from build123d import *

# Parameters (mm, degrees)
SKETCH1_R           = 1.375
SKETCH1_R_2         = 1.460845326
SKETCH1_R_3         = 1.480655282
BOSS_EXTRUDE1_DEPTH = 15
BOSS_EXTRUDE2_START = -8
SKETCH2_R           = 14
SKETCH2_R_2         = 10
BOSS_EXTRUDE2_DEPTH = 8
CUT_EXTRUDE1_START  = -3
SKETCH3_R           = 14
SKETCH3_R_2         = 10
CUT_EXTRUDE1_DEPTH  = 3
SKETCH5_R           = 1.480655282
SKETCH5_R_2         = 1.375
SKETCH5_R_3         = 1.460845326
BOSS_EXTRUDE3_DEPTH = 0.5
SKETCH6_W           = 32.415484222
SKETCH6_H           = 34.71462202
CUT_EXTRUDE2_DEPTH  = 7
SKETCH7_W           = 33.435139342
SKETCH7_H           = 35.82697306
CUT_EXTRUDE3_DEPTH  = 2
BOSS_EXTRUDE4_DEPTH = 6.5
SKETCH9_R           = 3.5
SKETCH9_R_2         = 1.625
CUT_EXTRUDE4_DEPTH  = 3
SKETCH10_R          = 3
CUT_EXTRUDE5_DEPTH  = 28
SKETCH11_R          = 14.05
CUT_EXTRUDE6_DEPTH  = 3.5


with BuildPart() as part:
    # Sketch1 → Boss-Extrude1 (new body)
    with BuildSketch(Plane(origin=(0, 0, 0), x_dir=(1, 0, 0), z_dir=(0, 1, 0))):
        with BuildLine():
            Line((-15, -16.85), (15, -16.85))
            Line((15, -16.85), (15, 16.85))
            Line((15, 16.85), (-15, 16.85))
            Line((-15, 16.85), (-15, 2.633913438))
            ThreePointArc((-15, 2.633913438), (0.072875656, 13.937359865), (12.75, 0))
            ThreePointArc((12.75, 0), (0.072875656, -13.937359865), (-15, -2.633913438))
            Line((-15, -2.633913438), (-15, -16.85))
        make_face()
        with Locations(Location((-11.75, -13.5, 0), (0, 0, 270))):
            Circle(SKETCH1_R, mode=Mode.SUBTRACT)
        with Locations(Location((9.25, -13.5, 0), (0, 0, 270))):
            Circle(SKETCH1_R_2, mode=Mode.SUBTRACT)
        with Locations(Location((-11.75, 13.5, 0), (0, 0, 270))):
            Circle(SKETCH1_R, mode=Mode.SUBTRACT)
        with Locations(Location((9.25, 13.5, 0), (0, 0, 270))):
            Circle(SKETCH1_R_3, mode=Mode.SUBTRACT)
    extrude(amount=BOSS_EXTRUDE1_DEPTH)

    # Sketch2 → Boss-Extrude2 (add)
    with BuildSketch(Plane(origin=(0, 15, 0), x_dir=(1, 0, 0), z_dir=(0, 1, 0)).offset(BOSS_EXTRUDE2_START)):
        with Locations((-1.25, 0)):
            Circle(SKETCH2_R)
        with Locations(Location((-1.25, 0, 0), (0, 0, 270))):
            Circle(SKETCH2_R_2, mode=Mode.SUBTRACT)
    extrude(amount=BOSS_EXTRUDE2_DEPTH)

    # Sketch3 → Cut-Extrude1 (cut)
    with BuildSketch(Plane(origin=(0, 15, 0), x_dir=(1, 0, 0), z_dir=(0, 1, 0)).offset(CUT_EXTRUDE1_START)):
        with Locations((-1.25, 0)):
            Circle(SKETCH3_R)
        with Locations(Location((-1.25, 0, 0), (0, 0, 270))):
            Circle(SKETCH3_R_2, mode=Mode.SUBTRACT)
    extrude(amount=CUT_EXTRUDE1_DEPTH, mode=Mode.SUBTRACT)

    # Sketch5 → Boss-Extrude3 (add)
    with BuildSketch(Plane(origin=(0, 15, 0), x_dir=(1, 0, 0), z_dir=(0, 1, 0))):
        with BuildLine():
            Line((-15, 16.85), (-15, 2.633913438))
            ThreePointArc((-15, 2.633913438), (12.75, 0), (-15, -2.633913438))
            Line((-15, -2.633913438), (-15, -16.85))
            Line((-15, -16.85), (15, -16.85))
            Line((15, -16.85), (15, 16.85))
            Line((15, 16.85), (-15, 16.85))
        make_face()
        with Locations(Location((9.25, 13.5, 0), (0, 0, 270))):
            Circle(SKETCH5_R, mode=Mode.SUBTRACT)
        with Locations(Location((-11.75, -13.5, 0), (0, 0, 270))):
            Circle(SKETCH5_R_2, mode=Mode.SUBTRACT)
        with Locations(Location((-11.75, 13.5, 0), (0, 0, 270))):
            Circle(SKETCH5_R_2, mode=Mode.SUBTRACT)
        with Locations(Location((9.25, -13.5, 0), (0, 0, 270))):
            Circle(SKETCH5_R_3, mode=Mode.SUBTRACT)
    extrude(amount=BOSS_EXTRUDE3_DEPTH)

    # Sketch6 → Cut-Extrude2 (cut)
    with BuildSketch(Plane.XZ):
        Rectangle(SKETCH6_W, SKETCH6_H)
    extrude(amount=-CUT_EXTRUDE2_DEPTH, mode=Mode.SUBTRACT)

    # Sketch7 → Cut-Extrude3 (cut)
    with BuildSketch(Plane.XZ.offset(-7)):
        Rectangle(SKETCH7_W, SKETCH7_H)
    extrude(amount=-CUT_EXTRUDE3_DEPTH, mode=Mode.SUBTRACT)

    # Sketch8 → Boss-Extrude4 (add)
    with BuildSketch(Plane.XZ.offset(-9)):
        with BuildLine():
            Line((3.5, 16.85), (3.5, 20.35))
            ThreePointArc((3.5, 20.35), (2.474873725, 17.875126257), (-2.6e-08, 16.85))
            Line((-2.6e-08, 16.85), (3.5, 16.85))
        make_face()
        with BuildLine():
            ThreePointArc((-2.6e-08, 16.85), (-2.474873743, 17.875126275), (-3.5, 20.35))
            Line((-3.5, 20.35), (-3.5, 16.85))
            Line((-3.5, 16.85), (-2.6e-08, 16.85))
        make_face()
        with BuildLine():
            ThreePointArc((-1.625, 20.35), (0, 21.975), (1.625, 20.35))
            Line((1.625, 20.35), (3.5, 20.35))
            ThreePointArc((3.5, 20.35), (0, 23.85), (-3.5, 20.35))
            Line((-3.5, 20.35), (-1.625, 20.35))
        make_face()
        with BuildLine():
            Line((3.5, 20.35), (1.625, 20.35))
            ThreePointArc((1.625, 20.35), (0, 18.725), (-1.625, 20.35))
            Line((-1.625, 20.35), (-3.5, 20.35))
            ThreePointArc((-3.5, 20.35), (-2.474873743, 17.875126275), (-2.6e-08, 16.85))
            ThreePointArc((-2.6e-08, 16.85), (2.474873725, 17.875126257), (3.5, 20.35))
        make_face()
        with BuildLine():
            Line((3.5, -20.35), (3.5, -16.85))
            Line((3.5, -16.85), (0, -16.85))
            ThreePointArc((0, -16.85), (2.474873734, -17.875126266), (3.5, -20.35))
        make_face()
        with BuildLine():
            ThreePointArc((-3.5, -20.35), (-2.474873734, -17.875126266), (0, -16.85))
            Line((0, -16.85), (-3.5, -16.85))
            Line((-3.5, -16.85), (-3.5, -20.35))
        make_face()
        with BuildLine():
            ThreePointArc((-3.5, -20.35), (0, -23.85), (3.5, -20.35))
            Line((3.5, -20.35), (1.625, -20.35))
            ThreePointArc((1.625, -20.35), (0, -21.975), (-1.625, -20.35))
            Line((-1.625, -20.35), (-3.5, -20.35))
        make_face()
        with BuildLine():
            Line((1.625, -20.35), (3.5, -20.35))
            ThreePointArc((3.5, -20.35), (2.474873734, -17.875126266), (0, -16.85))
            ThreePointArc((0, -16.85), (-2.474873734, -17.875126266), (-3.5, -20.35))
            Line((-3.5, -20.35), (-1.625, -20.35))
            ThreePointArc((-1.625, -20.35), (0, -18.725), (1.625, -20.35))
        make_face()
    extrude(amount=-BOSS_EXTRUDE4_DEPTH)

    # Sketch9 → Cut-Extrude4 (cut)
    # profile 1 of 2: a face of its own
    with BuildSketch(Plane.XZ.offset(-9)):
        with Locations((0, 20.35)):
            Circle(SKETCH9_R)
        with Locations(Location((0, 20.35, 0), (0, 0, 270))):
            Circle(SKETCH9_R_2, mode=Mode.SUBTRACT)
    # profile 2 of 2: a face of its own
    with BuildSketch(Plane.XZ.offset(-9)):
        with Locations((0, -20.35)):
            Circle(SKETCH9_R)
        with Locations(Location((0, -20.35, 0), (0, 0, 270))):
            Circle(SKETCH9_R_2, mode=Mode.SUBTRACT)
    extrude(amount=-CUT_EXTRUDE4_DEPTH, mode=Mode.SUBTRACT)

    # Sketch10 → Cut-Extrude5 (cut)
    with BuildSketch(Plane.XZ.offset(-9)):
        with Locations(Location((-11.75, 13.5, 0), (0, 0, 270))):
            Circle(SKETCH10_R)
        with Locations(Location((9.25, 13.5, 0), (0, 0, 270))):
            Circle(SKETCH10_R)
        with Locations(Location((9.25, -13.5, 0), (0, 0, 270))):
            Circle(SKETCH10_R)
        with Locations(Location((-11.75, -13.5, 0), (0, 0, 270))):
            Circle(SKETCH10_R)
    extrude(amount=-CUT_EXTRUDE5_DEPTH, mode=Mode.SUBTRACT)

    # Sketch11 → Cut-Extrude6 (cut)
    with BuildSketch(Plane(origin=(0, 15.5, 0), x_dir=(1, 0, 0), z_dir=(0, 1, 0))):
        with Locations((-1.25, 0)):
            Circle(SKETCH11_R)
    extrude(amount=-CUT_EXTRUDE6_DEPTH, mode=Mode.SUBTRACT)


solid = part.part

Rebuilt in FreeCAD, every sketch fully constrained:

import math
import FreeCAD as App
import Part
import Sketcher
Q = App.Units.Quantity

doc = App.newDocument("Part")
body = doc.addObject("PartDesign::Body", "Body")

# Sketch on XZ plane
sketch1 = doc.addObject("Sketcher::SketchObject", "Sketch")
body.addObject(sketch1)
sketch1.AttachmentSupport = (doc.XZ_Plane, [""])
sketch1.MapMode = "FlatFace"
sketch1.addGeometry([
    Part.LineSegment(App.Vector(-15, 16.85, 0), App.Vector(15, 16.85, 0)),  # 0
    Part.LineSegment(App.Vector(15, 16.85, 0), App.Vector(15, -16.85, 0)),  # 1
    Part.LineSegment(App.Vector(15, -16.85, 0), App.Vector(-15, -16.85, 0)),  # 2
    Part.LineSegment(App.Vector(-15, -16.85, 0), App.Vector(-15, -2.633913, 0)),  # 3
    Part.ArcOfCircle(Part.Circle(App.Vector(-1.25, 0, 0), App.Vector(0, 0, 1), 14), math.radians(-169.155937), math.radians(0)),  # 4
    Part.ArcOfCircle(Part.Circle(App.Vector(-1.25, 0, 0), App.Vector(0, 0, 1), 14), math.radians(0), math.radians(169.155937)),  # 5
    Part.LineSegment(App.Vector(-15, 2.633913, 0), App.Vector(-15, 16.85, 0)),  # 6
    Part.Circle(App.Vector(-11.75, 13.5, 0), App.Vector(0, 0, 1), 1.375),  # 7
    Part.Circle(App.Vector(9.25, 13.5, 0), App.Vector(0, 0, 1), 1.460845),  # 8
    Part.Circle(App.Vector(-11.75, -13.5, 0), App.Vector(0, 0, 1), 1.375),  # 9
    Part.Circle(App.Vector(9.25, -13.5, 0), App.Vector(0, 0, 1), 1.480655),  # 10
], False)
sketch1.addConstraint([
    Sketcher.Constraint("Coincident", 0, 2, 1, 1),
    Sketcher.Constraint("Coincident", 1, 2, 2, 1),
    Sketcher.Constraint("Coincident", 2, 2, 3, 1),
    Sketcher.Constraint("Coincident", 3, 2, 4, 1),
    Sketcher.Constraint("Tangent", 4, 2, 5, 1),
    Sketcher.Constraint("Coincident", 5, 2, 6, 1),
    Sketcher.Constraint("Coincident", 6, 2, 0, 1),
    Sketcher.Constraint("Horizontal", 0),
    Sketcher.Constraint("Vertical", 1),
    Sketcher.Constraint("Horizontal", 2),
    Sketcher.Constraint("Vertical", 3),
    Sketcher.Constraint("Vertical", 6),
    Sketcher.Constraint("Equal", 4, 5),
    Sketcher.Constraint("Equal", 7, 9),
    Sketcher.Constraint("Symmetric", 0, 2, 2, 2, -1, 1),
    Sketcher.Constraint("Symmetric", 7, 3, 9, 3, -1),
    Sketcher.Constraint("Symmetric", 8, 3, 10, 3, -1),
    Sketcher.Constraint("Symmetric", 3, 2, 5, 2, -1),
    Sketcher.Constraint("PointOnObject", 4, 2, -1),
    Sketcher.Constraint("Horizontal", 7, 3, 8, 3),
    Sketcher.Constraint("Radius", 4, Q("14 mm")),
    Sketcher.Constraint("Diameter", 7, Q("2.75 mm")),
    Sketcher.Constraint("DistanceX", 0, 1, 0, 2, Q("30 mm")),
    Sketcher.Constraint("DistanceY", 1, 2, 1, 1, Q("33.7 mm")),
    Sketcher.Constraint("DistanceX", 7, 3, 8, 3, Q("21 mm")),
    Sketcher.Constraint("DistanceY", 9, 3, 7, 3, Q("27 mm")),
    Sketcher.Constraint("DistanceX", 7, 3, 4, 3, Q("10.5 mm")),
    Sketcher.Constraint("Diameter", 8, Q("2.921691 mm")),
    Sketcher.Constraint("Diameter", 10, Q("2.961311 mm")),
    Sketcher.Constraint("DistanceX", 4, 3, -1, 1, Q("1.25 mm")),
])
pad1 = doc.addObject("PartDesign::Pad", "Pad")
body.addObject(pad1)
pad1.Profile = sketch1
pad1.Length = 15
pad1.Reversed = True

# Sketch on XZ plane
sketch2 = doc.addObject("Sketcher::SketchObject", "Sketch001")
body.addObject(sketch2)
sketch2.AttachmentSupport = (doc.XZ_Plane, [""])
sketch2.MapMode = "FlatFace"
sketch2.AttachmentOffset = App.Placement(App.Vector(0, 0, -7), App.Rotation())
sketch2.addGeometry([
    Part.Circle(App.Vector(-1.25, 0, 0), App.Vector(0, 0, 1), 14),
    Part.Circle(App.Vector(-1.25, 0, 0), App.Vector(0, 0, 1), 10),
], False)
sketch2.addConstraint([
    Sketcher.Constraint("Coincident", 1, 3, 0, 3),
    Sketcher.Constraint("PointOnObject", 0, 3, -1),
    Sketcher.Constraint("Diameter", 0, Q("28 mm")),
    Sketcher.Constraint("Diameter", 1, Q("20 mm")),
    Sketcher.Constraint("DistanceX", 0, 3, -1, 1, Q("1.25 mm")),
])
pad2 = doc.addObject("PartDesign::Pad", "Pad001")
body.addObject(pad2)
pad2.Profile = sketch2
pad2.Length = 8
pad2.Reversed = True

# Sketch on XZ plane
sketch3 = doc.addObject("Sketcher::SketchObject", "Sketch002")
body.addObject(sketch3)
sketch3.AttachmentSupport = (doc.XZ_Plane, [""])
sketch3.MapMode = "FlatFace"
sketch3.AttachmentOffset = App.Placement(App.Vector(0, 0, -12), App.Rotation())
sketch3.addGeometry([
    Part.Circle(App.Vector(-1.25, 0, 0), App.Vector(0, 0, 1), 14),
    Part.Circle(App.Vector(-1.25, 0, 0), App.Vector(0, 0, 1), 10),
], False)
sketch3.addConstraint([
    Sketcher.Constraint("Coincident", 1, 3, 0, 3),
    Sketcher.Constraint("PointOnObject", 0, 3, -1),
    Sketcher.Constraint("Diameter", 0, Q("28 mm")),
    Sketcher.Constraint("Diameter", 1, Q("20 mm")),
    Sketcher.Constraint("DistanceX", 0, 3, -1, 1, Q("1.25 mm")),
])
pocket1 = doc.addObject("PartDesign::Pocket", "Pocket")
body.addObject(pocket1)
pocket1.Profile = sketch3
pocket1.Length = 3

# Sketch on XZ plane
sketch4 = doc.addObject("Sketcher::SketchObject", "Sketch003")
body.addObject(sketch4)
sketch4.AttachmentSupport = (doc.XZ_Plane, [""])
sketch4.MapMode = "FlatFace"
sketch4.AttachmentOffset = App.Placement(App.Vector(0, 0, -15), App.Rotation())
sketch4.addGeometry([
    Part.LineSegment(App.Vector(-15, -16.85, 0), App.Vector(-15, -2.633913, 0)),  # 0
    Part.ArcOfCircle(Part.Circle(App.Vector(-1.25, 0, 0), App.Vector(0, 0, 1), 14), math.radians(-169.155937), math.radians(169.155937)),  # 1
    Part.LineSegment(App.Vector(-15, 2.633913, 0), App.Vector(-15, 16.85, 0)),  # 2
    Part.LineSegment(App.Vector(-15, 16.85, 0), App.Vector(15, 16.85, 0)),  # 3
    Part.LineSegment(App.Vector(15, 16.85, 0), App.Vector(15, -16.85, 0)),  # 4
    Part.LineSegment(App.Vector(15, -16.85, 0), App.Vector(-15, -16.85, 0)),  # 5
    Part.Circle(App.Vector(-11.75, 13.5, 0), App.Vector(0, 0, 1), 1.375),  # 6
    Part.Circle(App.Vector(9.25, 13.5, 0), App.Vector(0, 0, 1), 1.460845),  # 7
    Part.Circle(App.Vector(-11.75, -13.5, 0), App.Vector(0, 0, 1), 1.375),  # 8
    Part.Circle(App.Vector(9.25, -13.5, 0), App.Vector(0, 0, 1), 1.480655),  # 9
], False)
sketch4.addConstraint([
    Sketcher.Constraint("Coincident", 0, 2, 1, 1),
    Sketcher.Constraint("Coincident", 1, 2, 2, 1),
    Sketcher.Constraint("Coincident", 2, 2, 3, 1),
    Sketcher.Constraint("Coincident", 3, 2, 4, 1),
    Sketcher.Constraint("Coincident", 4, 2, 5, 1),
    Sketcher.Constraint("Coincident", 5, 2, 0, 1),
    Sketcher.Constraint("Vertical", 0),
    Sketcher.Constraint("Vertical", 2),
    Sketcher.Constraint("Horizontal", 3),
    Sketcher.Constraint("Vertical", 4),
    Sketcher.Constraint("Horizontal", 5),
    Sketcher.Constraint("Equal", 6, 8),
    Sketcher.Constraint("Symmetric", 2, 2, 4, 2, -1, 1),
    Sketcher.Constraint("Symmetric", 6, 3, 8, 3, -1),
    Sketcher.Constraint("Symmetric", 7, 3, 9, 3, -1),
    Sketcher.Constraint("Symmetric", 0, 2, 1, 2, -1),
    Sketcher.Constraint("Horizontal", 6, 3, 7, 3),
    Sketcher.Constraint("Radius", 1, Q("14 mm")),
    Sketcher.Constraint("Diameter", 6, Q("2.75 mm")),
    Sketcher.Constraint("DistanceX", 3, 1, 3, 2, Q("30 mm")),
    Sketcher.Constraint("DistanceY", 4, 2, 4, 1, Q("33.7 mm")),
    Sketcher.Constraint("DistanceX", 6, 3, 7, 3, Q("21 mm")),
    Sketcher.Constraint("DistanceY", 8, 3, 6, 3, Q("27 mm")),
    Sketcher.Constraint("DistanceX", 6, 3, 1, 3, Q("10.5 mm")),
    Sketcher.Constraint("Diameter", 7, Q("2.921691 mm")),
    Sketcher.Constraint("Diameter", 9, Q("2.961311 mm")),
    Sketcher.Constraint("DistanceX", 1, 3, -1, 1, Q("1.25 mm")),
])
pad3 = doc.addObject("PartDesign::Pad", "Pad002")
body.addObject(pad3)
pad3.Profile = sketch4
pad3.Length = 0.5
pad3.Reversed = True

# Sketch on XZ plane
sketch5 = doc.addObject("Sketcher::SketchObject", "Sketch004")
body.addObject(sketch5)
sketch5.AttachmentSupport = (doc.XZ_Plane, [""])
sketch5.MapMode = "FlatFace"
sketch5.addGeometry([
    Part.LineSegment(App.Vector(-16.207742, 17.357311, 0), App.Vector(-16.207742, -17.357311, 0)),
    Part.LineSegment(App.Vector(-16.207742, -17.357311, 0), App.Vector(16.207742, -17.357311, 0)),
    Part.LineSegment(App.Vector(16.207742, -17.357311, 0), App.Vector(16.207742, 17.357311, 0)),
    Part.LineSegment(App.Vector(16.207742, 17.357311, 0), App.Vector(-16.207742, 17.357311, 0)),
], False)
sketch5.addConstraint([
    Sketcher.Constraint("Coincident", 0, 2, 1, 1),
    Sketcher.Constraint("Coincident", 1, 2, 2, 1),
    Sketcher.Constraint("Coincident", 2, 2, 3, 1),
    Sketcher.Constraint("Coincident", 3, 2, 0, 1),
    Sketcher.Constraint("Vertical", 0),
    Sketcher.Constraint("Horizontal", 1),
    Sketcher.Constraint("Vertical", 2),
    Sketcher.Constraint("Horizontal", 3),
    Sketcher.Constraint("Symmetric", 0, 2, 2, 2, -1, 1),
    Sketcher.Constraint("DistanceX", 1, 1, 1, 2, Q("32.415484 mm")),
    Sketcher.Constraint("DistanceY", 0, 2, 0, 1, Q("34.714622 mm")),
])
pocket2 = doc.addObject("PartDesign::Pocket", "Pocket001")
body.addObject(pocket2)
pocket2.Profile = sketch5
pocket2.Length = 7

# Sketch on XZ plane
sketch6 = doc.addObject("Sketcher::SketchObject", "Sketch005")
body.addObject(sketch6)
sketch6.AttachmentSupport = (doc.XZ_Plane, [""])
sketch6.MapMode = "FlatFace"
sketch6.AttachmentOffset = App.Placement(App.Vector(0, 0, -7), App.Rotation())
sketch6.addGeometry([
    Part.LineSegment(App.Vector(-16.71757, 17.913487, 0), App.Vector(-16.71757, -17.913487, 0)),
    Part.LineSegment(App.Vector(-16.71757, -17.913487, 0), App.Vector(16.71757, -17.913487, 0)),
    Part.LineSegment(App.Vector(16.71757, -17.913487, 0), App.Vector(16.71757, 17.913487, 0)),
    Part.LineSegment(App.Vector(16.71757, 17.913487, 0), App.Vector(-16.71757, 17.913487, 0)),
], False)
sketch6.addConstraint([
    Sketcher.Constraint("Coincident", 0, 2, 1, 1),
    Sketcher.Constraint("Coincident", 1, 2, 2, 1),
    Sketcher.Constraint("Coincident", 2, 2, 3, 1),
    Sketcher.Constraint("Coincident", 3, 2, 0, 1),
    Sketcher.Constraint("Vertical", 0),
    Sketcher.Constraint("Horizontal", 1),
    Sketcher.Constraint("Vertical", 2),
    Sketcher.Constraint("Horizontal", 3),
    Sketcher.Constraint("Symmetric", 0, 2, 2, 2, -1, 1),
    Sketcher.Constraint("DistanceX", 1, 1, 1, 2, Q("33.435139 mm")),
    Sketcher.Constraint("DistanceY", 0, 2, 0, 1, Q("35.826973 mm")),
])
pocket3 = doc.addObject("PartDesign::Pocket", "Pocket002")
body.addObject(pocket3)
pocket3.Profile = sketch6
pocket3.Length = 2

# Sketch on XZ plane
sketch7 = doc.addObject("Sketcher::SketchObject", "Sketch006")
body.addObject(sketch7)
sketch7.AttachmentSupport = (doc.XZ_Plane, [""])
sketch7.MapMode = "FlatFace"
sketch7.AttachmentOffset = App.Placement(App.Vector(0, 0, -9), App.Rotation())
sketch7.addGeometry([
    Part.LineSegment(App.Vector(-3.5, 20.35, 0), App.Vector(-3.5, 16.85, 0)),  # 0
    Part.LineSegment(App.Vector(-3.5, 16.85, 0), App.Vector(3.5, 16.85, 0)),  # 1
    Part.LineSegment(App.Vector(3.5, 16.85, 0), App.Vector(3.5, 20.35, 0)),  # 2
    Part.ArcOfCircle(Part.Circle(App.Vector(0, 20.35, 0), App.Vector(0, 0, 1), 3.5), math.radians(0), math.radians(180)),  # 3
    Part.Circle(App.Vector(0, 20.35, 0), App.Vector(0, 0, 1), 1.625),  # 4
    Part.ArcOfCircle(Part.Circle(App.Vector(0, -20.35, 0), App.Vector(0, 0, 1), 3.5), math.radians(180), math.radians(360)),  # 5
    Part.LineSegment(App.Vector(3.5, -20.35, 0), App.Vector(3.5, -16.85, 0)),  # 6
    Part.LineSegment(App.Vector(3.5, -16.85, 0), App.Vector(-3.5, -16.85, 0)),  # 7
    Part.LineSegment(App.Vector(-3.5, -16.85, 0), App.Vector(-3.5, -20.35, 0)),  # 8
    Part.Circle(App.Vector(0, -20.35, 0), App.Vector(0, 0, 1), 1.625),  # 9
], False)
sketch7.addConstraint([
    Sketcher.Constraint("Coincident", 0, 2, 1, 1),
    Sketcher.Constraint("Coincident", 1, 2, 2, 1),
    Sketcher.Constraint("Tangent", 2, 2, 3, 1),
    Sketcher.Constraint("Tangent", 3, 2, 0, 1),
    Sketcher.Constraint("Tangent", 5, 2, 6, 1),
    Sketcher.Constraint("Coincident", 6, 2, 7, 1),
    Sketcher.Constraint("Coincident", 7, 2, 8, 1),
    Sketcher.Constraint("Tangent", 8, 2, 5, 1),
    Sketcher.Constraint("Vertical", 0),
    Sketcher.Constraint("Horizontal", 1),
    Sketcher.Constraint("Vertical", 2),
    Sketcher.Constraint("Vertical", 6),
    Sketcher.Constraint("Horizontal", 7),
    Sketcher.Constraint("Vertical", 8),
    Sketcher.Constraint("Coincident", 4, 3, 3, 3),
    Sketcher.Constraint("Coincident", 9, 3, 5, 3),
    Sketcher.Constraint("Equal", 3, 5),
    Sketcher.Constraint("Equal", 4, 9),
    Sketcher.Constraint("Symmetric", 3, 3, 5, 3, -1, 1),
    Sketcher.Constraint("Symmetric", 1, 2, 6, 2, -1),
    Sketcher.Constraint("Radius", 3, Q("3.5 mm")),
    Sketcher.Constraint("Diameter", 4, Q("3.25 mm")),
    Sketcher.Constraint("DistanceY", 0, 2, 0, 1, Q("3.5 mm")),
    Sketcher.Constraint("DistanceY", 5, 3, 3, 3, Q("40.7 mm")),
])
pad4 = doc.addObject("PartDesign::Pad", "Pad003")
body.addObject(pad4)
pad4.Profile = sketch7
pad4.Length = 6.5
pad4.Reversed = True

# Sketch on XZ plane
sketch8 = doc.addObject("Sketcher::SketchObject", "Sketch007")
body.addObject(sketch8)
sketch8.AttachmentSupport = (doc.XZ_Plane, [""])
sketch8.MapMode = "FlatFace"
sketch8.AttachmentOffset = App.Placement(App.Vector(0, 0, -9), App.Rotation())
sketch8.addGeometry([
    Part.Circle(App.Vector(0, 20.35, 0), App.Vector(0, 0, 1), 3.5),
    Part.Circle(App.Vector(0, 20.35, 0), App.Vector(0, 0, 1), 1.625),
    Part.Circle(App.Vector(0, -20.35, 0), App.Vector(0, 0, 1), 3.5),
    Part.Circle(App.Vector(0, -20.35, 0), App.Vector(0, 0, 1), 1.625),
], False)
sketch8.addConstraint([
    Sketcher.Constraint("Coincident", 1, 3, 0, 3),
    Sketcher.Constraint("Coincident", 3, 3, 2, 3),
    Sketcher.Constraint("Equal", 0, 2),
    Sketcher.Constraint("Equal", 1, 3),
    Sketcher.Constraint("Symmetric", 0, 3, 2, 3, -1, 1),
    Sketcher.Constraint("PointOnObject", 0, 3, -2),
    Sketcher.Constraint("Diameter", 0, Q("7 mm")),
    Sketcher.Constraint("Diameter", 1, Q("3.25 mm")),
    Sketcher.Constraint("DistanceY", 2, 3, 0, 3, Q("40.7 mm")),
])
pocket4 = doc.addObject("PartDesign::Pocket", "Pocket003")
body.addObject(pocket4)
pocket4.Profile = sketch8
pocket4.Length = 3

# Sketch on XZ plane
sketch9 = doc.addObject("Sketcher::SketchObject", "Sketch008")
body.addObject(sketch9)
sketch9.AttachmentSupport = (doc.XZ_Plane, [""])
sketch9.MapMode = "FlatFace"
sketch9.AttachmentOffset = App.Placement(App.Vector(0, 0, -9), App.Rotation())
sketch9.addGeometry([
    Part.Circle(App.Vector(-11.75, 13.5, 0), App.Vector(0, 0, 1), 3),
    Part.Circle(App.Vector(9.25, 13.5, 0), App.Vector(0, 0, 1), 3),
    Part.Circle(App.Vector(9.25, -13.5, 0), App.Vector(0, 0, 1), 3),
    Part.Circle(App.Vector(-11.75, -13.5, 0), App.Vector(0, 0, 1), 3),
], False)
sketch9.addConstraint([
    Sketcher.Constraint("Equal", 0, 1),
    Sketcher.Constraint("Equal", 1, 2),
    Sketcher.Constraint("Equal", 2, 3),
    Sketcher.Constraint("Symmetric", 1, 3, 2, 3, -1),
    Sketcher.Constraint("Symmetric", 0, 3, 3, 3, -1),
    Sketcher.Constraint("Horizontal", 0, 3, 1, 3),
    Sketcher.Constraint("Diameter", 0, Q("6 mm")),
    Sketcher.Constraint("DistanceX", 0, 3, 1, 3, Q("21 mm")),
    Sketcher.Constraint("DistanceY", 2, 3, 1, 3, Q("27 mm")),
    Sketcher.Constraint("DistanceX", 0, 3, -1, 1, Q("11.75 mm")),
])
pocket5 = doc.addObject("PartDesign::Pocket", "Pocket004")
body.addObject(pocket5)
pocket5.Profile = sketch9
pocket5.Length = 28

# Sketch on XZ plane
sketch10 = doc.addObject("Sketcher::SketchObject", "Sketch009")
body.addObject(sketch10)
sketch10.AttachmentSupport = (doc.XZ_Plane, [""])
sketch10.MapMode = "FlatFace"
sketch10.AttachmentOffset = App.Placement(App.Vector(0, 0, -15.5), App.Rotation())
sketch10.addGeometry(Part.Circle(App.Vector(-1.25, 0, 0), App.Vector(0, 0, 1), 14.05), False)
sketch10.addConstraint([
    Sketcher.Constraint("PointOnObject", 0, 3, -1),
    Sketcher.Constraint("Diameter", 0, Q("28.1 mm")),
    Sketcher.Constraint("DistanceX", 0, 3, -1, 1, Q("1.25 mm")),
])
pocket6 = doc.addObject("PartDesign::Pocket", "Pocket005")
body.addObject(pocket6)
pocket6.Profile = sketch10
pocket6.Length = 3.5
pocket6.Reversed = True

doc.recompute()
